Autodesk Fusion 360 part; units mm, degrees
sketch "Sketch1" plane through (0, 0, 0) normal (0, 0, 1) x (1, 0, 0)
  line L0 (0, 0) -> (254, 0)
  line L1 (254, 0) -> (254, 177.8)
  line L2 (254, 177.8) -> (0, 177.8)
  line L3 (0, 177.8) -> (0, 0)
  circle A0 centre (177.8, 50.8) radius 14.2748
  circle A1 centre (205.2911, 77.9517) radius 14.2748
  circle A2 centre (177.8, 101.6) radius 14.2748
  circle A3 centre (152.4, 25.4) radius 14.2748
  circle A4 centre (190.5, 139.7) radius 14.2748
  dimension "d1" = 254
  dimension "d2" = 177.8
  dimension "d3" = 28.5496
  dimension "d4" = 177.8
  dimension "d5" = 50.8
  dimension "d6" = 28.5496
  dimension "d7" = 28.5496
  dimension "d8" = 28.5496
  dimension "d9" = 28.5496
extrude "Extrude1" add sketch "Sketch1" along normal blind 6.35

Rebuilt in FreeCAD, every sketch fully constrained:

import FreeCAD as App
import Part
import Sketcher
from FreeCAD import Vector
Q = App.Units.Quantity

doc = App.newDocument("Part")
body = doc.addObject("PartDesign::Body", "Body")

# Sketch on XY plane
sketch1 = doc.addObject("Sketcher::SketchObject", "Sketch")
body.addObject(sketch1)
sketch1.AttachmentSupport = (doc.XY_Plane, [""])
sketch1.MapMode = "FlatFace"
sketch1.addGeometry([
    Part.LineSegment(Vector(0, 177.8, 0), Vector(0, 0, 0)),  # 0
    Part.LineSegment(Vector(0, 0, 0), Vector(254, 0, 0)),  # 1
    Part.LineSegment(Vector(254, 0, 0), Vector(254, 177.8, 0)),  # 2
    Part.LineSegment(Vector(254, 177.8, 0), Vector(0, 177.8, 0)),  # 3
    Part.Circle(Vector(152.4, 25.4, 0), Vector(0, 0, 1), 14.2748),  # 4
    Part.Circle(Vector(177.8, 50.8, 0), Vector(0, 0, 1), 14.2748),  # 5
    Part.Circle(Vector(205.2911, 77.9517, 0), Vector(0, 0, 1), 14.2748),  # 6
    Part.Circle(Vector(177.8, 101.6, 0), Vector(0, 0, 1), 14.2748),  # 7
    Part.Circle(Vector(190.5, 139.7, 0), Vector(0, 0, 1), 14.2748),  # 8
], False)
sketch1.addConstraint([
    Sketcher.Constraint("Coincident", 0, 2, 1, 1),
    Sketcher.Constraint("Coincident", 1, 2, 2, 1),
    Sketcher.Constraint("Coincident", 2, 2, 3, 1),
    Sketcher.Constraint("Coincident", 3, 2, 0, 1),
    Sketcher.Constraint("Vertical", 0),
    Sketcher.Constraint("Horizontal", 1),
    Sketcher.Constraint("Vertical", 2),
    Sketcher.Constraint("Horizontal", 3),
    Sketcher.Constraint("Coincident", 0, 2, -1, 1),
    Sketcher.Constraint("Equal", 4, 5),
    Sketcher.Constraint("Equal", 5, 6),
    Sketcher.Constraint("Equal", 6, 7),
    Sketcher.Constraint("Equal", 7, 8),
    Sketcher.Constraint("Vertical", 5, 3, 7, 3),
    Sketcher.Constraint("DistanceX", 1, 1, 1, 2, Q("10 in")),
    Sketcher.Constraint("DistanceY", 0, 2, 0, 1, Q("7 in")),
    Sketcher.Constraint("Diameter", 4, Q("1.124 in")),
    Sketcher.Constraint("DistanceX", -1, 1, 5, 3, Q("7 in")),
    Sketcher.Constraint("DistanceY", -1, 1, 5, 3, Q("2 in")),
    Sketcher.Constraint("DistanceY", 5, 3, 7, 3, Q("2 in")),
    Sketcher.Constraint("DistanceX", -1, 1, 4, 3, Q("6 in")),
    Sketcher.Constraint("DistanceY", -1, 1, 4, 3, Q("1 in")),
    Sketcher.Constraint("DistanceX", -1, 1, 8, 3, Q("7.5 in")),
    Sketcher.Constraint("DistanceY", -1, 1, 8, 3, Q("5.5 in")),
    Sketcher.Constraint("DistanceX", -1, 1, 6, 3, 205.291),
    Sketcher.Constraint("DistanceY", -1, 1, 6, 3, 77.9517),
])
pad1 = doc.addObject("PartDesign::Pad", "Pad")
body.addObject(pad1)
pad1.Profile = sketch1
pad1.Length = Q("0.25 in")

doc.recompute()
